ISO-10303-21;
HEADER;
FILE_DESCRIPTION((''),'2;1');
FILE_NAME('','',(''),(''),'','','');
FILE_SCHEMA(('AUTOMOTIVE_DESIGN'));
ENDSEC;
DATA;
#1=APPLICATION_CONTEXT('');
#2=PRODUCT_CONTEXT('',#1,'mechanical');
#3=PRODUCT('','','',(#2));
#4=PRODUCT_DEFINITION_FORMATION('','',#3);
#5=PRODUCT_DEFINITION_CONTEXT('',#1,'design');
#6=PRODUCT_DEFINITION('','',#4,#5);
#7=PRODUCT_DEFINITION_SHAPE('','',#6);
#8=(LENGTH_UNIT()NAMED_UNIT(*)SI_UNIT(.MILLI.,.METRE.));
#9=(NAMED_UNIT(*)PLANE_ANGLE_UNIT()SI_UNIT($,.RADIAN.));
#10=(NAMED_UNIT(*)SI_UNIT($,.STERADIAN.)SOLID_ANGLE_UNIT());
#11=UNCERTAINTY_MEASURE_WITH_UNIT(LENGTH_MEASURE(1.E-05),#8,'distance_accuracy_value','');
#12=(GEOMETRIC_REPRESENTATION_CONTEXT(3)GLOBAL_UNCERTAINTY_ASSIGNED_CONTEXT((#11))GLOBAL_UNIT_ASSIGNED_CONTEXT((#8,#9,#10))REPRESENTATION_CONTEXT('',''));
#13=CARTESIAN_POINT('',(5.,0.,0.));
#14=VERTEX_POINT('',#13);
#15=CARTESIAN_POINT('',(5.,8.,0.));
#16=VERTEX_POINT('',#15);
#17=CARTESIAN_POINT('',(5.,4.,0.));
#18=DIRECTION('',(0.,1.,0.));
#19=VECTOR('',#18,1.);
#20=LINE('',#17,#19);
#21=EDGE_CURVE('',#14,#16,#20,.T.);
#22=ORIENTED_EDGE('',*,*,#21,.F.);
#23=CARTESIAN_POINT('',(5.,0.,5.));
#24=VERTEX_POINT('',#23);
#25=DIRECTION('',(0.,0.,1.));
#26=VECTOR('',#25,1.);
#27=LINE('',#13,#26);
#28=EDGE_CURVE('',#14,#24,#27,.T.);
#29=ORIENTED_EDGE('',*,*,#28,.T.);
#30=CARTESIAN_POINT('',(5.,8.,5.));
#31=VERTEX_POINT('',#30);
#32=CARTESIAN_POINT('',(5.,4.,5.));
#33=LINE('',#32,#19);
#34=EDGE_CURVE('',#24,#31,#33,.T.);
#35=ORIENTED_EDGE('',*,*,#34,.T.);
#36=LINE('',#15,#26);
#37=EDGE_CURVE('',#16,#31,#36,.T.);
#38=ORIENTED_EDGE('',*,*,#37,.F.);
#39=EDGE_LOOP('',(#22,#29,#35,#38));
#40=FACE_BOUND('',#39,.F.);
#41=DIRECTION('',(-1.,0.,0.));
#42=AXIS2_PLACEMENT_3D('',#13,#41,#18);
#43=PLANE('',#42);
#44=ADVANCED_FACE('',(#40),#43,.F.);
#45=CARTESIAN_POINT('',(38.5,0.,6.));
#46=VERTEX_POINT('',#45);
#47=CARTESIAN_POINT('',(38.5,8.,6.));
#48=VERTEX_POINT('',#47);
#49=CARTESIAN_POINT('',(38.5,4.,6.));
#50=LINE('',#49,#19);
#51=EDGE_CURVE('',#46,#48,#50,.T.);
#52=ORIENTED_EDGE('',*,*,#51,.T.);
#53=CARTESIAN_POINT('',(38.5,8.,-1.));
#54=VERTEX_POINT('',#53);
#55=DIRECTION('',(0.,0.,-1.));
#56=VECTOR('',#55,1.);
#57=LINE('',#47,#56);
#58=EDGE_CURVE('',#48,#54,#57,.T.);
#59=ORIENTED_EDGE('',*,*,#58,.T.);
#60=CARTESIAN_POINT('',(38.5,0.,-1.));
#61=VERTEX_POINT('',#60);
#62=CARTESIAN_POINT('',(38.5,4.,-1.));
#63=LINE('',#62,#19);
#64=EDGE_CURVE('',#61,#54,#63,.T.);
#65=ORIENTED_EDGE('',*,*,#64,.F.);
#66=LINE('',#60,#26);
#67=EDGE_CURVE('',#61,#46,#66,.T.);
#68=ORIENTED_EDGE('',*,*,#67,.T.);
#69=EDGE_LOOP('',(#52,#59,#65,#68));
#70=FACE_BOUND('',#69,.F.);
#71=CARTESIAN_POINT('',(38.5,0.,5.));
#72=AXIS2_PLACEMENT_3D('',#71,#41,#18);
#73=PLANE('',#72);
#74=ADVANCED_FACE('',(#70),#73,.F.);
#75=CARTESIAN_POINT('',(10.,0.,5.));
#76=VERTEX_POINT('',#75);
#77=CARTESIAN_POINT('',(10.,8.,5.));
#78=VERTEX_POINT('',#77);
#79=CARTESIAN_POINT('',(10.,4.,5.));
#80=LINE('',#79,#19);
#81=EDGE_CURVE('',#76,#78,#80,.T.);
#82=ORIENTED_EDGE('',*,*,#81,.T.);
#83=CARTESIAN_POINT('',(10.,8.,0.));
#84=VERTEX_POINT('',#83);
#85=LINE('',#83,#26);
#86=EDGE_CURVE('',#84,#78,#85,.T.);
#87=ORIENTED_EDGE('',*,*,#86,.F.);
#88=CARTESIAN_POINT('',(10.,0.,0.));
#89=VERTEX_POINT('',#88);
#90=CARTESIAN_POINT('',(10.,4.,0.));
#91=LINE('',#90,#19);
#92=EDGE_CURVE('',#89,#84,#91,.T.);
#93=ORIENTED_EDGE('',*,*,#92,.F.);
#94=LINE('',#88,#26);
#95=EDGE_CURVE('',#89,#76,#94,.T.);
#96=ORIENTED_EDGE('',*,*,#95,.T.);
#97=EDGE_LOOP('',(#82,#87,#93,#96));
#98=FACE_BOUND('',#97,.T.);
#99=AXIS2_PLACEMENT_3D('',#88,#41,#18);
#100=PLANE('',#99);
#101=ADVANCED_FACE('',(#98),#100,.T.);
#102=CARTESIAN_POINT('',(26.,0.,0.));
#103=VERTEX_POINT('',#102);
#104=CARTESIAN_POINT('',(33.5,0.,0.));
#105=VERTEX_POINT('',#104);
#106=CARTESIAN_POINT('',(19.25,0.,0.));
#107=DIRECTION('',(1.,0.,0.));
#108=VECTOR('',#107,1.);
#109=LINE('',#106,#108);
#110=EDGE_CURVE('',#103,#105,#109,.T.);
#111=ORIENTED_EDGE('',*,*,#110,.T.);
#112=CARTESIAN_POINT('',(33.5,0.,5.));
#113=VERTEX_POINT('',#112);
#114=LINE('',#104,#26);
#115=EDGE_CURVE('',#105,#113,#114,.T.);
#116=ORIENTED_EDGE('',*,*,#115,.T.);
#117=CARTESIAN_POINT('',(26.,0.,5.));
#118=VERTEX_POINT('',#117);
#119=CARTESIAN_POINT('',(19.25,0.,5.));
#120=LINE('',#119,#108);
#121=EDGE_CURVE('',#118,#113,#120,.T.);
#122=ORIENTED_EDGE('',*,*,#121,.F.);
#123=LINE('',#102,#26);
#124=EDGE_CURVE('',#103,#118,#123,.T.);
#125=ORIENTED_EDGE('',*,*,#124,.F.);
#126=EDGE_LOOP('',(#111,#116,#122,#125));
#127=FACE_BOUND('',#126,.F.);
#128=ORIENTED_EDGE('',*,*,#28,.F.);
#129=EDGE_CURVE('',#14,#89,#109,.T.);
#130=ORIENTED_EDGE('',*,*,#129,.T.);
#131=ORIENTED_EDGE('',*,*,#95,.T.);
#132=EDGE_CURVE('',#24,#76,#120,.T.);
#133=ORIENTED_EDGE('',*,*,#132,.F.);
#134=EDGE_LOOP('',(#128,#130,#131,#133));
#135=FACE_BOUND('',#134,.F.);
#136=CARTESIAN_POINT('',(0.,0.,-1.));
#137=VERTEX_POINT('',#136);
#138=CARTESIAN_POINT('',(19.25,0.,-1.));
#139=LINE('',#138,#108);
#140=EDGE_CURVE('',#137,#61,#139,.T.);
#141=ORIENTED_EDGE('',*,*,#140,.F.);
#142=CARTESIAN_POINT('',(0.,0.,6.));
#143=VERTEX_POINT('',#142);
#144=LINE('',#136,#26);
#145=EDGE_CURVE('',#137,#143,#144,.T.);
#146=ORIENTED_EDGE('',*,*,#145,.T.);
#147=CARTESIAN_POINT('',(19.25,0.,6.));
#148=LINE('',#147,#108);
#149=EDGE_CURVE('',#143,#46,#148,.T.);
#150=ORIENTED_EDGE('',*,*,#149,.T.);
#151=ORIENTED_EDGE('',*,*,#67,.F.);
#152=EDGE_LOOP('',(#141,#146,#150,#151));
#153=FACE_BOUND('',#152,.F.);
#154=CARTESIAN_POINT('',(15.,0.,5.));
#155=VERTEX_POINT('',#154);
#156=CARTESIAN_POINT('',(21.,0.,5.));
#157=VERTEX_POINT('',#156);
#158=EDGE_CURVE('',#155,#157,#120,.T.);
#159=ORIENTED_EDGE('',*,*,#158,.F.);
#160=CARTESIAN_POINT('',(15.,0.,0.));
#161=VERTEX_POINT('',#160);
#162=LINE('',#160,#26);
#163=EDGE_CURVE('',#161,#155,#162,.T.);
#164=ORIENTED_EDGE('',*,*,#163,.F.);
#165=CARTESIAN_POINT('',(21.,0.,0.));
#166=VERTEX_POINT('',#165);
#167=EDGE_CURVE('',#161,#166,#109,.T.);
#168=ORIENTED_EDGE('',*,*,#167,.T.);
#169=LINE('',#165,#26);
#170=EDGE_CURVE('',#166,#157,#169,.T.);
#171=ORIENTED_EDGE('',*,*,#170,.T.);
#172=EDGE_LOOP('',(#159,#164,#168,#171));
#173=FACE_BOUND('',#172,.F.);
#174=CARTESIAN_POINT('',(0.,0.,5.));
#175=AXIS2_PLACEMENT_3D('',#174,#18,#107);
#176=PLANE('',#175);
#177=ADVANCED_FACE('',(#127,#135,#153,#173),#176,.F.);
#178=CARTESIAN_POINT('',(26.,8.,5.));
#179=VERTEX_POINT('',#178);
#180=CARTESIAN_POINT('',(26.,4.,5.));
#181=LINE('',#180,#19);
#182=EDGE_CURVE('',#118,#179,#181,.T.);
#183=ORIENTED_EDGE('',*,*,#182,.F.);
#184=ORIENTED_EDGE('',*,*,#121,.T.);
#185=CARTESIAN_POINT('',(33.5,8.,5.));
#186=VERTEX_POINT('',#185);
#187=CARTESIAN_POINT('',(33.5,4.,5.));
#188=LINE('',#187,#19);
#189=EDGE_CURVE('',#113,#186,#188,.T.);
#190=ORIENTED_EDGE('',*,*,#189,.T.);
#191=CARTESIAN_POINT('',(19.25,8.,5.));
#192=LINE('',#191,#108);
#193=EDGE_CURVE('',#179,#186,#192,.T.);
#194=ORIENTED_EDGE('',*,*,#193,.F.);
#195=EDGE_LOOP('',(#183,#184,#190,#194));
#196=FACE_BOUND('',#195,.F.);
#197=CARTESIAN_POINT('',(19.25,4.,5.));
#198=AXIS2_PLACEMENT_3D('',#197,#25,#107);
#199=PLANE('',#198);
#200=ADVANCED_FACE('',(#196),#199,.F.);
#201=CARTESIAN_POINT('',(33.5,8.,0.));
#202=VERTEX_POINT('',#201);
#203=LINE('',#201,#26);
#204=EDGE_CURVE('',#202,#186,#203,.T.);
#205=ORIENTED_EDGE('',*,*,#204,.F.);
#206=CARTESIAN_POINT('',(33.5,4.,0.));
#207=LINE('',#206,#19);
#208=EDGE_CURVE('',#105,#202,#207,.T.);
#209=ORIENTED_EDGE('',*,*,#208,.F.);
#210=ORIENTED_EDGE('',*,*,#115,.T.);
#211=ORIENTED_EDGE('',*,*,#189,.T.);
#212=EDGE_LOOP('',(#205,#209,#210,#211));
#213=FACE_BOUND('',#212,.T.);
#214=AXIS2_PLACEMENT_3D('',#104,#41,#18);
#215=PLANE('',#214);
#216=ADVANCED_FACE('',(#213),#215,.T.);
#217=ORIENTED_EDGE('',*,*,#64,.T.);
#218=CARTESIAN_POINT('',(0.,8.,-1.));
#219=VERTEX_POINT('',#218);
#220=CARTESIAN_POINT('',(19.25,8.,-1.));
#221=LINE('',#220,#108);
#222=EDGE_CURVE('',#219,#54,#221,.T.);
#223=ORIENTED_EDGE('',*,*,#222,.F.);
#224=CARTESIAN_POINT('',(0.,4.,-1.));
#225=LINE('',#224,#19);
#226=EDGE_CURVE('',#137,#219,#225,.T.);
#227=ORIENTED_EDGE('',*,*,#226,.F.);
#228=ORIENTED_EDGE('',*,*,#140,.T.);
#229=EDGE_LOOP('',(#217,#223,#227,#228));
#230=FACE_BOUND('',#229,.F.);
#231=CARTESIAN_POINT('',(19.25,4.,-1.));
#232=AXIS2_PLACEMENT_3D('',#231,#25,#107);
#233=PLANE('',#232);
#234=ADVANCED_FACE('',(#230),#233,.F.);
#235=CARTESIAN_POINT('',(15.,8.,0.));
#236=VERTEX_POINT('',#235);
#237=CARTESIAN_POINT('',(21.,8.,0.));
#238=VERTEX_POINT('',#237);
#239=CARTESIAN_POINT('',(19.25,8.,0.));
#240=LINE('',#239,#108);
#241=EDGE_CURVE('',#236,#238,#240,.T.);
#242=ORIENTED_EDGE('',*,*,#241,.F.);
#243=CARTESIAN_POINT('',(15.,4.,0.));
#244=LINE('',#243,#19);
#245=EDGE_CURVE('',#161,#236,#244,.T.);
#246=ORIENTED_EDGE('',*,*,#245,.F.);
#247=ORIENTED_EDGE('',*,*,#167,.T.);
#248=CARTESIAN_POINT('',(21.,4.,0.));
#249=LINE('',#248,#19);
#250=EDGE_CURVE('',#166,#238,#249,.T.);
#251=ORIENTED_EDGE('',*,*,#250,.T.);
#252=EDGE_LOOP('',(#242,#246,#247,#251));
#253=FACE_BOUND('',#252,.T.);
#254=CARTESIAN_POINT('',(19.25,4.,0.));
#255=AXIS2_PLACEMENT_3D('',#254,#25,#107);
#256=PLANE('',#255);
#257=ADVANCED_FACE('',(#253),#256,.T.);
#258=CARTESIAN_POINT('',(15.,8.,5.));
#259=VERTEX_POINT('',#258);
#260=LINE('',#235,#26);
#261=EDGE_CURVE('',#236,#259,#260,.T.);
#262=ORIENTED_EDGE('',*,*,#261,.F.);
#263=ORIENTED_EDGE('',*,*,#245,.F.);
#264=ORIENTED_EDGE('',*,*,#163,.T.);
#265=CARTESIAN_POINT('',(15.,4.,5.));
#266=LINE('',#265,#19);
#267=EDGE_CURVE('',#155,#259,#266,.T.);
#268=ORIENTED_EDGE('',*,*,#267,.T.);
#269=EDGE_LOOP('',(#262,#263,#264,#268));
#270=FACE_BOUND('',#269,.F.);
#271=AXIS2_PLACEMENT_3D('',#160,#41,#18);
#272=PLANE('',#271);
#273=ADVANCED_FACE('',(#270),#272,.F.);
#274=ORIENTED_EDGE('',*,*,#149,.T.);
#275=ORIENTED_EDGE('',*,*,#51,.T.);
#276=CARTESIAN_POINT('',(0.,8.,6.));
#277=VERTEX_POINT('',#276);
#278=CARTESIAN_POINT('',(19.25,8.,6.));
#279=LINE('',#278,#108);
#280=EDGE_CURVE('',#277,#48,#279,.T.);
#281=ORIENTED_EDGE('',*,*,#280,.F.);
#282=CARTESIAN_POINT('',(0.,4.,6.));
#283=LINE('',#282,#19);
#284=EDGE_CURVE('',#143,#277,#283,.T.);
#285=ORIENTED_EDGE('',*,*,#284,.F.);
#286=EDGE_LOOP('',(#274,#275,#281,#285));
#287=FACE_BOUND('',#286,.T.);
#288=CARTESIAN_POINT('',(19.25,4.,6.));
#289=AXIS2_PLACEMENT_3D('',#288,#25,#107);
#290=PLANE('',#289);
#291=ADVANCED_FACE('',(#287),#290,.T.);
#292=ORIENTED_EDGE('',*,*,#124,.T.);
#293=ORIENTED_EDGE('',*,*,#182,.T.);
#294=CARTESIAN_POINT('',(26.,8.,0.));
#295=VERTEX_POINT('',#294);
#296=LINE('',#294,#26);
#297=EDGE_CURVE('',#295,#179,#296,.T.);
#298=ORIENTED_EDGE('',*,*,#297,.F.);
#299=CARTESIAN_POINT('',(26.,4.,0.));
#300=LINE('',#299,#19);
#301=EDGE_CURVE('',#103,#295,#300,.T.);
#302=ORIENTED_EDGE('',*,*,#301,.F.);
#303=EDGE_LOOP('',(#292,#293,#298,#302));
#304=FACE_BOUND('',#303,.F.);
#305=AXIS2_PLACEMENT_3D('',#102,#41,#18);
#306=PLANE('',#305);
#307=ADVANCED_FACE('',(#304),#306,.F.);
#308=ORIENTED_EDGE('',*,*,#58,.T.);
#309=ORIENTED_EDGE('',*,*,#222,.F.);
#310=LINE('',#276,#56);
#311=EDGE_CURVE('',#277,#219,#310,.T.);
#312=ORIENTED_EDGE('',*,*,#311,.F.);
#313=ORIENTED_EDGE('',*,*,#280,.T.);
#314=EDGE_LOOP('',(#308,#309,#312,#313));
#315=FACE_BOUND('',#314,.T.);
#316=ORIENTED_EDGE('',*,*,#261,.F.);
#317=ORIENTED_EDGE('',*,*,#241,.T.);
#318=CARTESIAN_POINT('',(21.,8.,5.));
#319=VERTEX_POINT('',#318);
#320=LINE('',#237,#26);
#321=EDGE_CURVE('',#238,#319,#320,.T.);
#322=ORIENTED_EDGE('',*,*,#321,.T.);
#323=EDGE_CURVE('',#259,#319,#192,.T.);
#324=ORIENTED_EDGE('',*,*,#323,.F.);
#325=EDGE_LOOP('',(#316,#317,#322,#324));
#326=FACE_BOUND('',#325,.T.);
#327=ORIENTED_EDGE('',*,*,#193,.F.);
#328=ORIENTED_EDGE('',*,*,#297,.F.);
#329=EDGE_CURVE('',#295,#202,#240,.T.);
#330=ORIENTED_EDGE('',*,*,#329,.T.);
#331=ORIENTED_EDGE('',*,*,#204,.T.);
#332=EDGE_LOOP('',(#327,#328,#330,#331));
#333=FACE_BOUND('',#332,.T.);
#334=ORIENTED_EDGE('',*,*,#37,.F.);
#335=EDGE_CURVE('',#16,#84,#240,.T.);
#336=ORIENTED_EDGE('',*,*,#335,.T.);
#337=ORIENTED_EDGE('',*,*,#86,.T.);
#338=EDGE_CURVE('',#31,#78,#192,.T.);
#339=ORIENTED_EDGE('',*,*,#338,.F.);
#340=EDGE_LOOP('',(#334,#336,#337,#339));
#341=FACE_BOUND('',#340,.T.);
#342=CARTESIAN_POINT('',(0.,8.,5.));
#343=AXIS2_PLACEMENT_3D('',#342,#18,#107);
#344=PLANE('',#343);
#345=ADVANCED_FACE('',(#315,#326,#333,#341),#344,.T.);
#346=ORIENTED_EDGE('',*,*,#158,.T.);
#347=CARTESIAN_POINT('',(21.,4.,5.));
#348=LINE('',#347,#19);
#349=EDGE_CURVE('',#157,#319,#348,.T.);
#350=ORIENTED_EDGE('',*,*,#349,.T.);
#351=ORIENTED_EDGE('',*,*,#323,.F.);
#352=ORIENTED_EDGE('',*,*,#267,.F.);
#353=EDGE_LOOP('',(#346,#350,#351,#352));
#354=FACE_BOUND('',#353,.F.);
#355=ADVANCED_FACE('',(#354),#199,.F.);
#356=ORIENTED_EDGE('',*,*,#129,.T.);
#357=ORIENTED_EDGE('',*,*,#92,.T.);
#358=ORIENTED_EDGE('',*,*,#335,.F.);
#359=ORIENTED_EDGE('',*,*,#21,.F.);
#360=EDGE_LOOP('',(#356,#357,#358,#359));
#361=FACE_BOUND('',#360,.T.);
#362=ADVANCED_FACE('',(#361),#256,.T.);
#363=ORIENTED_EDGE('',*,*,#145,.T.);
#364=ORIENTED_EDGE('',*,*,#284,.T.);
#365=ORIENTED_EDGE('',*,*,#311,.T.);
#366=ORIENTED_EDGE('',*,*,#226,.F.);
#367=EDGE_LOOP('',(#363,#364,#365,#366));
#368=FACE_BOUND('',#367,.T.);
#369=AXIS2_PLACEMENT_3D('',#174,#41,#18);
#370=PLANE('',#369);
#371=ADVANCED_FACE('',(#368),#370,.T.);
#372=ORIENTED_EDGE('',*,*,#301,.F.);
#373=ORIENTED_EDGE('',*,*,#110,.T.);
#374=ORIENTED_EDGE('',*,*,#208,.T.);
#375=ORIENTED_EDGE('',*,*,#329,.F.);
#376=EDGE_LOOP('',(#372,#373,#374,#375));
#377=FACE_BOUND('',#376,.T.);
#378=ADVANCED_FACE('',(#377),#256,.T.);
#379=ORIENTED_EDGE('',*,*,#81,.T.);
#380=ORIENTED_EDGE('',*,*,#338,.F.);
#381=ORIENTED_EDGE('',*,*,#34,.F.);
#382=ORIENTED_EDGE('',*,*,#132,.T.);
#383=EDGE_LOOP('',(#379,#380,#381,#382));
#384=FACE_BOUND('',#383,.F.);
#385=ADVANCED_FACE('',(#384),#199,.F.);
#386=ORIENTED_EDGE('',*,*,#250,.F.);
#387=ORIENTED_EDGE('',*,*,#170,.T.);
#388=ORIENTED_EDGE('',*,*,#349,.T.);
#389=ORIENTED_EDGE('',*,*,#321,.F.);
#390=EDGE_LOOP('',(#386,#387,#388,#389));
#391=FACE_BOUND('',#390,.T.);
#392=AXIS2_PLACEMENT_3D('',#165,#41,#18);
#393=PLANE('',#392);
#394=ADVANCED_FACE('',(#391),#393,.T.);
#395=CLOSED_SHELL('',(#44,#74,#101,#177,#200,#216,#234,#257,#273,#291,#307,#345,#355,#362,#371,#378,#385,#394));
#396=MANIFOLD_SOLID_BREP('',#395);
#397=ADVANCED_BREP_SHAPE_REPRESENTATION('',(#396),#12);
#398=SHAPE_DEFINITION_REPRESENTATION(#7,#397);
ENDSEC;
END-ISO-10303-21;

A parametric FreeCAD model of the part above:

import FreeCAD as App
import Part
import Sketcher
Q = App.Units.Quantity

doc = App.newDocument("Part")
params = doc.addObject("Spreadsheet::Sheet", "Params")
for row, (alias, value) in enumerate([
    ("sketch1_width", "5 mm"),
    ("sketch1_height", "8 mm"),
    ("pad1_length", "5 mm"),
    ("sketch2_height", "8 mm"),
    ("sketch2_width", "38.5 mm"),
    ("pad2_length", "1 mm"),
    ("sketch3_height", "8 mm"),
    ("sketch3_width", "38.5 mm"),
    ("pad3_length", "1 mm"),
], start=1):
    params.set(f"A{row}", alias)
    params.set(f"B{row}", "=" + value)
    params.setAlias(f"B{row}", alias)

body = doc.addObject("PartDesign::Body", "Body")
body.AllowCompound = True

sketch1 = body.newObject("Sketcher::SketchObject", "Sketch")
sketch1.AttachmentSupport = (doc.getObject("XY_Plane"), [""])
sketch1.MapMode = "FlatFace"
sketch1.addGeometry([
    Part.LineSegment(App.Vector(0, 8, 0), App.Vector(0, 0, 0)),
    Part.LineSegment(App.Vector(0, 0, 0), App.Vector(5, 0, 0)),
    Part.LineSegment(App.Vector(5, 0, 0), App.Vector(5, 8, 0)),
    Part.LineSegment(App.Vector(5, 8, 0), App.Vector(0, 8, 0)),
    Part.LineSegment(App.Vector(10, 8, 0), App.Vector(10, 0, 0)),
    Part.LineSegment(App.Vector(10, 0, 0), App.Vector(15, 0, 0)),
    Part.LineSegment(App.Vector(15, 0, 0), App.Vector(15, 8, 0)),
    Part.LineSegment(App.Vector(15, 8, 0), App.Vector(10, 8, 0)),
    Part.LineSegment(App.Vector(21, 8, 0), App.Vector(21, 0, 0)),
    Part.LineSegment(App.Vector(21, 0, 0), App.Vector(26, 0, 0)),
    Part.LineSegment(App.Vector(26, 0, 0), App.Vector(26, 8, 0)),
    Part.LineSegment(App.Vector(26, 8, 0), App.Vector(21, 8, 0)),
    Part.LineSegment(App.Vector(33.5, 8, 0), App.Vector(33.5, 0, 0)),
    Part.LineSegment(App.Vector(33.5, 0, 0), App.Vector(38.5, 0, 0)),
    Part.LineSegment(App.Vector(38.5, 0, 0), App.Vector(38.5, 8, 0)),
    Part.LineSegment(App.Vector(38.5, 8, 0), App.Vector(33.5, 8, 0)),
], False)
sketch1.addConstraint([
    Sketcher.Constraint("Coincident", 0, 2, 1, 1),
    Sketcher.Constraint("Coincident", 1, 2, 2, 1),
    Sketcher.Constraint("Coincident", 2, 2, 3, 1),
    Sketcher.Constraint("Coincident", 3, 2, 0, 1),
    Sketcher.Constraint("Coincident", 4, 2, 5, 1),
    Sketcher.Constraint("Coincident", 5, 2, 6, 1),
    Sketcher.Constraint("Coincident", 6, 2, 7, 1),
    Sketcher.Constraint("Coincident", 7, 2, 4, 1),
    Sketcher.Constraint("Coincident", 8, 2, 9, 1),
    Sketcher.Constraint("Coincident", 9, 2, 10, 1),
    Sketcher.Constraint("Coincident", 10, 2, 11, 1),
    Sketcher.Constraint("Coincident", 11, 2, 8, 1),
    Sketcher.Constraint("Coincident", 12, 2, 13, 1),
    Sketcher.Constraint("Coincident", 13, 2, 14, 1),
    Sketcher.Constraint("Coincident", 14, 2, 15, 1),
    Sketcher.Constraint("Coincident", 15, 2, 12, 1),
    Sketcher.Constraint("Vertical", 0),
    Sketcher.Constraint("Horizontal", 1),
    Sketcher.Constraint("Vertical", 2),
    Sketcher.Constraint("Horizontal", 3),
    Sketcher.Constraint("Vertical", 4),
    Sketcher.Constraint("Horizontal", 5),
    Sketcher.Constraint("Vertical", 6),
    Sketcher.Constraint("Horizontal", 7),
    Sketcher.Constraint("Vertical", 8),
    Sketcher.Constraint("Horizontal", 9),
    Sketcher.Constraint("Vertical", 10),
    Sketcher.Constraint("Horizontal", 11),
    Sketcher.Constraint("Vertical", 12),
    Sketcher.Constraint("Horizontal", 13),
    Sketcher.Constraint("Vertical", 14),
    Sketcher.Constraint("Horizontal", 15),
    Sketcher.Constraint("Coincident", 0, 2, -1, 1),
    Sketcher.Constraint("PointOnObject", 4, 2, -1),
    Sketcher.Constraint("PointOnObject", 8, 2, -1),
    Sketcher.Constraint("PointOnObject", 12, 2, -1),
    Sketcher.Constraint("Horizontal", 3, 2, 6, 2),
    Sketcher.Constraint("Horizontal", 7, 2, 10, 2),
    Sketcher.Constraint("Horizontal", 11, 2, 14, 2),
    Sketcher.Constraint("Equal", 3, 5),
    Sketcher.Constraint("Equal", 7, 9),
    Sketcher.Constraint("Equal", 11, 13),
    Sketcher.Constraint("DistanceX", 1, 1, 1, 2, Q("5 mm")),
    Sketcher.Constraint("DistanceY", 0, 2, 0, 1, Q("8 mm")),
    Sketcher.Constraint("DistanceX", -1, 1, 4, 2, Q("10 mm")),
    Sketcher.Constraint("DistanceX", -1, 1, 8, 2, Q("21 mm")),
    Sketcher.Constraint("DistanceX", -1, 1, 12, 2, Q("33.5 mm")),
])
sketch1.setExpression("Constraints[42]", "Params.sketch1_width")
sketch1.setExpression("Constraints[43]", "Params.sketch1_height")
pad1 = body.newObject("PartDesign::Pad", "Pad")
pad1.Profile = sketch1
pad1.setExpression("Length", "Params.pad1_length")

sketch2 = body.newObject("Sketcher::SketchObject", "Sketch001")
sketch2.AttachmentSupport = (doc.getObject("XY_Plane"), [""])
sketch2.MapMode = "FlatFace"
sketch2.addGeometry([
    Part.LineSegment(App.Vector(0, 8, 0), App.Vector(0, 0, 0)),
    Part.LineSegment(App.Vector(0, 0, 0), App.Vector(38.5, 0, 0)),
    Part.LineSegment(App.Vector(38.5, 0, 0), App.Vector(38.5, 8, 0)),
    Part.LineSegment(App.Vector(38.5, 8, 0), App.Vector(0, 8, 0)),
], False)
sketch2.addConstraint([
    Sketcher.Constraint("Coincident", 0, 2, 1, 1),
    Sketcher.Constraint("Coincident", 1, 2, 2, 1),
    Sketcher.Constraint("Coincident", 2, 2, 3, 1),
    Sketcher.Constraint("Coincident", 3, 2, 0, 1),
    Sketcher.Constraint("Vertical", 0),
    Sketcher.Constraint("Horizontal", 1),
    Sketcher.Constraint("Vertical", 2),
    Sketcher.Constraint("Horizontal", 3),
    Sketcher.Constraint("Coincident", 0, 2, -1, 1),
    Sketcher.Constraint("DistanceY", 0, 2, 0, 1, Q("8 mm")),
    Sketcher.Constraint("DistanceX", 1, 1, 1, 2, Q("38.5 mm")),
])
sketch2.setExpression("Constraints[9]", "Params.sketch2_height")
sketch2.setExpression("Constraints[10]", "Params.sketch2_width")
pad2 = body.newObject("PartDesign::Pad", "Pad001")
pad2.Profile = sketch2
pad2.setExpression("Length", "Params.pad2_length")
pad2.Reversed = True

sketch3 = body.newObject("Sketcher::SketchObject", "Sketch002")
sketch3.AttachmentSupport = (doc.getObject("XY_Plane"), [""])
sketch3.MapMode = "FlatFace"
sketch3.AttachmentOffset = App.Placement(App.Vector(0, 0, 5), App.Rotation())
sketch3.addGeometry([
    Part.LineSegment(App.Vector(0, 8, 0), App.Vector(0, 0, 0)),
    Part.LineSegment(App.Vector(0, 0, 0), App.Vector(38.5, 0, 0)),
    Part.LineSegment(App.Vector(38.5, 0, 0), App.Vector(38.5, 8, 0)),
    Part.LineSegment(App.Vector(38.5, 8, 0), App.Vector(0, 8, 0)),
], False)
sketch3.addConstraint([
    Sketcher.Constraint("Coincident", 0, 2, 1, 1),
    Sketcher.Constraint("Coincident", 1, 2, 2, 1),
    Sketcher.Constraint("Coincident", 2, 2, 3, 1),
    Sketcher.Constraint("Coincident", 3, 2, 0, 1),
    Sketcher.Constraint("Vertical", 0),
    Sketcher.Constraint("Horizontal", 1),
    Sketcher.Constraint("Vertical", 2),
    Sketcher.Constraint("Horizontal", 3),
    Sketcher.Constraint("Coincident", 0, 2, -1, 1),
    Sketcher.Constraint("DistanceY", 0, 2, 0, 1, Q("8 mm")),
    Sketcher.Constraint("DistanceX", 1, 1, 1, 2, Q("38.5 mm")),
])
sketch3.setExpression("Constraints[9]", "Params.sketch3_height")
sketch3.setExpression("Constraints[10]", "Params.sketch3_width")
pad3 = body.newObject("PartDesign::Pad", "Pad002")
pad3.Profile = sketch3
pad3.setExpression("Length", "Params.pad3_length")

doc.recompute()
